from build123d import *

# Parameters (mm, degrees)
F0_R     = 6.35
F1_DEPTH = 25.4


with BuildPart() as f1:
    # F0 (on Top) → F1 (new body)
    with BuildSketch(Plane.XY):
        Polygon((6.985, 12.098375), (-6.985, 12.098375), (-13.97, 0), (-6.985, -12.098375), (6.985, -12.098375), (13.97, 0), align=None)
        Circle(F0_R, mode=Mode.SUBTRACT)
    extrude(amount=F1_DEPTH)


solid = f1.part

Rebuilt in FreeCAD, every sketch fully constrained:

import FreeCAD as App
import Part
import Sketcher
from FreeCAD import Vector
Q = App.Units.Quantity

doc = App.newDocument("Part")
params = doc.addObject("Spreadsheet::Sheet", "Params")
for row, (alias, value) in enumerate([
    ("sketch1_diameter", "0.5 in"),
    ("sketch1_width", "0.55 in"),
    ("pad1_length", "1 in"),
], start=1):
    params.set(f"A{row}", alias)
    params.set(f"B{row}", "=" + value)
    params.setAlias(f"B{row}", alias)

body = doc.addObject("PartDesign::Body", "Body")

# Sketch on XY plane
sketch1 = body.newObject("Sketcher::SketchObject", "Sketch")
sketch1.AttachmentSupport = (doc.getObject("XY_Plane"), [""])
sketch1.MapMode = "FlatFace"
sketch1.addGeometry([
    Part.LineSegment(Vector(6.985, 12.098375, 0), Vector(-6.985, 12.098375, 0)),  # 0
    Part.LineSegment(Vector(-6.985, 12.098375, 0), Vector(-13.97, 0, 0)),  # 1
    Part.LineSegment(Vector(-13.97, 0, 0), Vector(-6.985, -12.098375, 0)),  # 2
    Part.LineSegment(Vector(-6.985, -12.098375, 0), Vector(6.985, -12.098375, 0)),  # 3
    Part.LineSegment(Vector(6.985, -12.098375, 0), Vector(13.97, 0, 0)),  # 4
    Part.LineSegment(Vector(13.97, 0, 0), Vector(6.985, 12.098375, 0)),  # 5
    Part.Circle(Vector(0, 0, 0), Vector(0, 0, 1), 6.35),  # 6
], False)
sketch1.addConstraint([
    Sketcher.Constraint("Coincident", 0, 2, 1, 1),
    Sketcher.Constraint("Coincident", 1, 2, 2, 1),
    Sketcher.Constraint("Coincident", 2, 2, 3, 1),
    Sketcher.Constraint("Coincident", 3, 2, 4, 1),
    Sketcher.Constraint("Coincident", 4, 2, 5, 1),
    Sketcher.Constraint("Coincident", 5, 2, 0, 1),
    Sketcher.Constraint("Horizontal", 0),
    Sketcher.Constraint("Horizontal", 3),
    Sketcher.Constraint("Coincident", 6, 3, -1, 1),
    Sketcher.Constraint("Symmetric", 0, 2, 3, 2, -1, 1),
    Sketcher.Constraint("Symmetric", 1, 2, 4, 2, -1, 1),
    Sketcher.Constraint("PointOnObject", 1, 2, -1),
    Sketcher.Constraint("Parallel", 2, 5),
    Sketcher.Constraint("Vertical", 0, 2, 2, 2),
    Sketcher.Constraint("Diameter", 6, Q("0.5 in")),
    Sketcher.Constraint("Angle", 1, Q("-120 deg")),
    Sketcher.Constraint("DistanceX", 0, 2, 0, 1, Q("0.55 in")),
    Sketcher.Constraint("DistanceX", 1, 2, 4, 2, Q("1.1 in")),
])
sketch1.setExpression("Constraints[14]", "Params.sketch1_diameter")
sketch1.setExpression("Constraints[16]", "Params.sketch1_width")
pad1 = body.newObject("PartDesign::Pad", "Pad")
pad1.Profile = sketch1
pad1.setExpression("Length", "Params.pad1_length")

doc.recompute()
